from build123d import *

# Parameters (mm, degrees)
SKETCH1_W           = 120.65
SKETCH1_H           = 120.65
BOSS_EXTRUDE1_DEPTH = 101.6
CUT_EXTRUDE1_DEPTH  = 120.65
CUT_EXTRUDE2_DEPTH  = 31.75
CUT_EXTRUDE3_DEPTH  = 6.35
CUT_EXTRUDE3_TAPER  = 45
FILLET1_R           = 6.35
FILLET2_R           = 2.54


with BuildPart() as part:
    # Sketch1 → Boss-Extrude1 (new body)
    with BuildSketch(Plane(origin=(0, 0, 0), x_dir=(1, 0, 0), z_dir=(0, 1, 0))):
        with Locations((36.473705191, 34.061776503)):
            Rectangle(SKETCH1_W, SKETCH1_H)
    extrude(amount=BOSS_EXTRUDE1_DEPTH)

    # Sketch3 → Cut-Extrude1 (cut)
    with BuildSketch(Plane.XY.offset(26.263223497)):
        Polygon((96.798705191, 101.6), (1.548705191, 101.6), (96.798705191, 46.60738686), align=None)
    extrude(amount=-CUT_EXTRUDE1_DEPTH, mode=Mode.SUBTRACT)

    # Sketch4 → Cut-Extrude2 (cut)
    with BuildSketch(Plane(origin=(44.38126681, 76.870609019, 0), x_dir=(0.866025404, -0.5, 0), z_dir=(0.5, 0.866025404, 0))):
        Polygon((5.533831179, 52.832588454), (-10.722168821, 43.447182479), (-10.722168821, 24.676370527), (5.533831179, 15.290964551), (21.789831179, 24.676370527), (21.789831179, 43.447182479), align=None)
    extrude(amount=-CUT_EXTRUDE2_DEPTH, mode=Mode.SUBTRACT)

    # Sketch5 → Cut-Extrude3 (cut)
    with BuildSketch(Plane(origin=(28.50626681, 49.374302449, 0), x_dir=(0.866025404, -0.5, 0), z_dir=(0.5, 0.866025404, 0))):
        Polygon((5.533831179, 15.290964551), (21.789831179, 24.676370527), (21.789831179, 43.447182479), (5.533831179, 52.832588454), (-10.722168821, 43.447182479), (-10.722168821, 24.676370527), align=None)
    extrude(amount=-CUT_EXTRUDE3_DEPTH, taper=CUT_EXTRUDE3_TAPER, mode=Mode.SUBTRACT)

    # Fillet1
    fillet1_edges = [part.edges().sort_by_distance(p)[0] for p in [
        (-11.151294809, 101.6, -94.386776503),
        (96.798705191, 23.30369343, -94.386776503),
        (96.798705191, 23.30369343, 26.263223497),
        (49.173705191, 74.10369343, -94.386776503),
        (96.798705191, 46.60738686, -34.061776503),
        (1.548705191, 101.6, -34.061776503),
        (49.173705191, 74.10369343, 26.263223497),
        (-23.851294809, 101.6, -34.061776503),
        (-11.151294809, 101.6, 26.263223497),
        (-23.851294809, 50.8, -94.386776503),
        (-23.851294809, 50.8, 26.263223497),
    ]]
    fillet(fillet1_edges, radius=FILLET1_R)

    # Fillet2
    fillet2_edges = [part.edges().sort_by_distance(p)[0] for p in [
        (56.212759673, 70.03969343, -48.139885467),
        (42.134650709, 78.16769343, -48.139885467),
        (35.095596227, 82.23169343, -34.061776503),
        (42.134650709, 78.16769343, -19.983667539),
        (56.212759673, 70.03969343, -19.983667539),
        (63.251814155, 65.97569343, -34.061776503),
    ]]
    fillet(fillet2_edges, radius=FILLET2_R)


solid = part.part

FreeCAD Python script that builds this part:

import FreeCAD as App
import Part
import Sketcher

V = App.Vector
Q = App.Units.Quantity


def edges_at(feature, points):
    """Names of the edges that pass closest to the given points."""
    edges = feature.Shape.Edges
    near = lambda p: min(range(len(edges)), key=lambda i: edges[i].distToShape(Part.Vertex(*p))[0])
    return sorted({f"Edge{near(p) + 1}" for p in points})


def add_polygon(sketch, points):
    """Adds a closed chain of lines whose ends are joined by coincident constraints."""
    first, n = sketch.GeometryCount, len(points)
    for a, b in zip(points, points[1:] + points[:1]):
        sketch.addGeometry(Part.LineSegment(App.Vector(*a, 0), App.Vector(*b, 0)), False)
    for i in range(n):
        sketch.addConstraint(Sketcher.Constraint("Coincident", first + i, 2, first + (i + 1) % n, 1))

doc = App.newDocument("Part")
params = doc.addObject("Spreadsheet::Sheet", "Params")
for row, (alias, value) in enumerate([
    ("sketch1_width", "4.75 in"),
    ("pad1_length", "4 in"),
    ("sketch2_width", "3.75 in"),
    ("pocket1_length", "4.75 in"),
    ("pocket2_length", "1.25 in"),
    ("pocket3_length", "0.25 in"),
    ("pocket3_taper", "-45 deg"),
    ("fillet_radius", "0.25 in"),
    ("fillet2_radius", "0.1 in"),
], start=1):
    params.set(f"A{row}", alias)
    params.set(f"B{row}", "=" + value)
    params.setAlias(f"B{row}", alias)

body = doc.addObject("PartDesign::Body", "Body")

# Sketch on XZ plane
sketch1 = body.newObject("Sketcher::SketchObject", "Sketch")
sketch1.AttachmentSupport = (doc.getObject("XZ_Plane"), [""])
sketch1.MapMode = "FlatFace"
add_polygon(sketch1, [(-23.851295, -94.386777), (-23.851295, 26.263223), (96.798705, 26.263223), (96.798705, -94.386777)])  # lines 0-3
sketch1.addConstraint([
    Sketcher.Constraint("Vertical", 0),
    Sketcher.Constraint("Horizontal", 1),
    Sketcher.Constraint("Vertical", 2),
    Sketcher.Constraint("Horizontal", 3),
    Sketcher.Constraint("Equal", 3, 0),
    Sketcher.Constraint("DistanceX", 1, 1, 1, 2, Q("4.75 in")),
    Sketcher.Constraint("DistanceX", 0, 2, -1, 1, 23.851295),
    Sketcher.Constraint("DistanceY", -1, 1, 0, 2, 26.263223),
])
sketch1.setExpression("Constraints[9]", "Params.sketch1_width")
pad1 = body.newObject("PartDesign::Pad", "Pad")
pad1.Profile = sketch1
pad1.setExpression("Length", "Params.pad1_length")
pad1.Reversed = True

# Sketch on XY plane
sketch2 = body.newObject("Sketcher::SketchObject", "Sketch001")
sketch2.AttachmentSupport = (doc.getObject("XY_Plane"), [""])
sketch2.MapMode = "FlatFace"
sketch2.AttachmentOffset = App.Placement(V(0, 0, 26.263223), App.Rotation())
add_polygon(sketch2, [(96.798705, 101.6), (1.548705, 101.6), (96.798705, 46.607387)])  # lines 0-2
sketch2.addConstraint([
    Sketcher.Constraint("Horizontal", 0),
    Sketcher.Constraint("Vertical", 2),
    Sketcher.Constraint("DistanceY", -1, 1, 0, 2, Q("4 in")),
    Sketcher.Constraint("Angle", 1, Q("-30 deg")),
    Sketcher.Constraint("DistanceX", 0, 2, 0, 1, Q("3.75 in")),
    Sketcher.Constraint("DistanceX", -1, 1, 0, 2, 1.548705),
])
sketch2.setExpression("Constraints[7]", "Params.sketch2_width")
pocket1 = body.newObject("PartDesign::Pocket", "Pocket")
pocket1.Profile = sketch2
pocket1.setExpression("Length", "Params.pocket1_length")

# Sketch on an angled plane
sketch3 = body.newObject("Sketcher::SketchObject", "Sketch002")
sketch3.Placement = App.Placement(V(44.381267, 76.870609, 0), App.Rotation(V(0.866025404, -0.5, 0), V(0, 0, -1), V(0.5, 0.866025404, 0), "ZXY"))
add_polygon(sketch3, [(5.533831, 52.832588), (-10.722169, 43.447183), (-10.722169, 24.676371), (5.533831, 15.290965), (21.789831, 24.676371), (21.789831, 43.447183)])  # lines 0-5
sketch3.addConstraint([
    Sketcher.Constraint("Vertical", 1),
    Sketcher.Constraint("Vertical", 4),
    Sketcher.Constraint("Parallel", 0, 3),
    Sketcher.Constraint("Parallel", 2, 5),
    Sketcher.Constraint("Horizontal", 1, 2, 3, 2),
    Sketcher.Constraint("Horizontal", 0, 2, 4, 2),
    Sketcher.Constraint("Vertical", 2, 2, 5, 2),
    Sketcher.Constraint("Angle", 0, Q("-150 deg")),
    Sketcher.Constraint("DistanceX", 1, 2, 2, 2, Q("0.64 in")),
    Sketcher.Constraint("DistanceY", 1, 2, 1, 1, 18.770812),
    Sketcher.Constraint("DistanceX", 0, 2, -1, 1, 10.722169),
    Sketcher.Constraint("DistanceY", -1, 1, 1, 2, 24.676371),
])
pocket2 = body.newObject("PartDesign::Pocket", "Pocket001")
pocket2.Profile = sketch3
pocket2.setExpression("Length", "Params.pocket2_length")

# Sketch on an angled plane
sketch4 = body.newObject("Sketcher::SketchObject", "Sketch003")
sketch4.Placement = App.Placement(V(28.506267, 49.374302, 0), App.Rotation(V(0.866025404, -0.5, 0), V(0, 0, -1), V(0.5, 0.866025404, 0), "ZXY"))
add_polygon(sketch4, [(5.533831, 15.290965), (21.789831, 24.676371), (21.789831, 43.447183), (5.533831, 52.832588), (-10.722169, 43.447183), (-10.722169, 24.676371)])  # lines 0-5
sketch4.addConstraint([
    Sketcher.Constraint("Vertical", 1),
    Sketcher.Constraint("Vertical", 4),
    Sketcher.Constraint("Parallel", 0, 3),
    Sketcher.Constraint("Parallel", 2, 5),
    Sketcher.Constraint("Horizontal", 1, 2, 3, 2),
    Sketcher.Constraint("Horizontal", 0, 2, 4, 2),
    Sketcher.Constraint("Vertical", 2, 2, 5, 2),
    Sketcher.Constraint("Angle", 0, Q("30 deg")),
    Sketcher.Constraint("DistanceX", 2, 2, 1, 2, Q("0.64 in")),
    Sketcher.Constraint("DistanceY", 1, 1, 1, 2, 18.770812),
    Sketcher.Constraint("DistanceX", -1, 1, 0, 2, 21.789831),
    Sketcher.Constraint("DistanceY", -1, 1, 0, 2, 24.676371),
])
pocket3 = body.newObject("PartDesign::Pocket", "Pocket002")
pocket3.Profile = sketch4
pocket3.setExpression("Length", "Params.pocket3_length")
pocket3.setExpression("TaperAngle", "Params.pocket3_taper")
doc.recompute()

fillet = body.newObject("PartDesign::Fillet", "Fillet")
fillet.Base = (pocket3, edges_at(pocket3, [
    (-11.151, 101.6, -94.387),
    (96.799, 23.304, -94.387),
    (96.799, 23.304, 26.263),
    (49.174, 74.104, -94.387),
    (96.799, 46.607, -34.062),
    (1.549, 101.6, -34.062),
    (49.174, 74.104, 26.263),
    (-23.851, 101.6, -34.062),
    (-11.151, 101.6, 26.263),
    (-23.851, 50.8, -94.387),
    (-23.851, 50.8, 26.263),
]))
fillet.setExpression("Radius", "Params.fillet_radius")
doc.recompute()

fillet2 = body.newObject("PartDesign::Fillet", "Fillet001")
fillet2.Base = (fillet, edges_at(fillet, [
    (56.213, 70.04, -48.14),
    (42.135, 78.168, -48.14),
    (35.096, 82.232, -34.062),
    (42.135, 78.168, -19.984),
    (56.213, 70.04, -19.984),
    (63.252, 65.976, -34.062),
]))
fillet2.setExpression("Radius", "Params.fillet2_radius")

doc.recompute()
